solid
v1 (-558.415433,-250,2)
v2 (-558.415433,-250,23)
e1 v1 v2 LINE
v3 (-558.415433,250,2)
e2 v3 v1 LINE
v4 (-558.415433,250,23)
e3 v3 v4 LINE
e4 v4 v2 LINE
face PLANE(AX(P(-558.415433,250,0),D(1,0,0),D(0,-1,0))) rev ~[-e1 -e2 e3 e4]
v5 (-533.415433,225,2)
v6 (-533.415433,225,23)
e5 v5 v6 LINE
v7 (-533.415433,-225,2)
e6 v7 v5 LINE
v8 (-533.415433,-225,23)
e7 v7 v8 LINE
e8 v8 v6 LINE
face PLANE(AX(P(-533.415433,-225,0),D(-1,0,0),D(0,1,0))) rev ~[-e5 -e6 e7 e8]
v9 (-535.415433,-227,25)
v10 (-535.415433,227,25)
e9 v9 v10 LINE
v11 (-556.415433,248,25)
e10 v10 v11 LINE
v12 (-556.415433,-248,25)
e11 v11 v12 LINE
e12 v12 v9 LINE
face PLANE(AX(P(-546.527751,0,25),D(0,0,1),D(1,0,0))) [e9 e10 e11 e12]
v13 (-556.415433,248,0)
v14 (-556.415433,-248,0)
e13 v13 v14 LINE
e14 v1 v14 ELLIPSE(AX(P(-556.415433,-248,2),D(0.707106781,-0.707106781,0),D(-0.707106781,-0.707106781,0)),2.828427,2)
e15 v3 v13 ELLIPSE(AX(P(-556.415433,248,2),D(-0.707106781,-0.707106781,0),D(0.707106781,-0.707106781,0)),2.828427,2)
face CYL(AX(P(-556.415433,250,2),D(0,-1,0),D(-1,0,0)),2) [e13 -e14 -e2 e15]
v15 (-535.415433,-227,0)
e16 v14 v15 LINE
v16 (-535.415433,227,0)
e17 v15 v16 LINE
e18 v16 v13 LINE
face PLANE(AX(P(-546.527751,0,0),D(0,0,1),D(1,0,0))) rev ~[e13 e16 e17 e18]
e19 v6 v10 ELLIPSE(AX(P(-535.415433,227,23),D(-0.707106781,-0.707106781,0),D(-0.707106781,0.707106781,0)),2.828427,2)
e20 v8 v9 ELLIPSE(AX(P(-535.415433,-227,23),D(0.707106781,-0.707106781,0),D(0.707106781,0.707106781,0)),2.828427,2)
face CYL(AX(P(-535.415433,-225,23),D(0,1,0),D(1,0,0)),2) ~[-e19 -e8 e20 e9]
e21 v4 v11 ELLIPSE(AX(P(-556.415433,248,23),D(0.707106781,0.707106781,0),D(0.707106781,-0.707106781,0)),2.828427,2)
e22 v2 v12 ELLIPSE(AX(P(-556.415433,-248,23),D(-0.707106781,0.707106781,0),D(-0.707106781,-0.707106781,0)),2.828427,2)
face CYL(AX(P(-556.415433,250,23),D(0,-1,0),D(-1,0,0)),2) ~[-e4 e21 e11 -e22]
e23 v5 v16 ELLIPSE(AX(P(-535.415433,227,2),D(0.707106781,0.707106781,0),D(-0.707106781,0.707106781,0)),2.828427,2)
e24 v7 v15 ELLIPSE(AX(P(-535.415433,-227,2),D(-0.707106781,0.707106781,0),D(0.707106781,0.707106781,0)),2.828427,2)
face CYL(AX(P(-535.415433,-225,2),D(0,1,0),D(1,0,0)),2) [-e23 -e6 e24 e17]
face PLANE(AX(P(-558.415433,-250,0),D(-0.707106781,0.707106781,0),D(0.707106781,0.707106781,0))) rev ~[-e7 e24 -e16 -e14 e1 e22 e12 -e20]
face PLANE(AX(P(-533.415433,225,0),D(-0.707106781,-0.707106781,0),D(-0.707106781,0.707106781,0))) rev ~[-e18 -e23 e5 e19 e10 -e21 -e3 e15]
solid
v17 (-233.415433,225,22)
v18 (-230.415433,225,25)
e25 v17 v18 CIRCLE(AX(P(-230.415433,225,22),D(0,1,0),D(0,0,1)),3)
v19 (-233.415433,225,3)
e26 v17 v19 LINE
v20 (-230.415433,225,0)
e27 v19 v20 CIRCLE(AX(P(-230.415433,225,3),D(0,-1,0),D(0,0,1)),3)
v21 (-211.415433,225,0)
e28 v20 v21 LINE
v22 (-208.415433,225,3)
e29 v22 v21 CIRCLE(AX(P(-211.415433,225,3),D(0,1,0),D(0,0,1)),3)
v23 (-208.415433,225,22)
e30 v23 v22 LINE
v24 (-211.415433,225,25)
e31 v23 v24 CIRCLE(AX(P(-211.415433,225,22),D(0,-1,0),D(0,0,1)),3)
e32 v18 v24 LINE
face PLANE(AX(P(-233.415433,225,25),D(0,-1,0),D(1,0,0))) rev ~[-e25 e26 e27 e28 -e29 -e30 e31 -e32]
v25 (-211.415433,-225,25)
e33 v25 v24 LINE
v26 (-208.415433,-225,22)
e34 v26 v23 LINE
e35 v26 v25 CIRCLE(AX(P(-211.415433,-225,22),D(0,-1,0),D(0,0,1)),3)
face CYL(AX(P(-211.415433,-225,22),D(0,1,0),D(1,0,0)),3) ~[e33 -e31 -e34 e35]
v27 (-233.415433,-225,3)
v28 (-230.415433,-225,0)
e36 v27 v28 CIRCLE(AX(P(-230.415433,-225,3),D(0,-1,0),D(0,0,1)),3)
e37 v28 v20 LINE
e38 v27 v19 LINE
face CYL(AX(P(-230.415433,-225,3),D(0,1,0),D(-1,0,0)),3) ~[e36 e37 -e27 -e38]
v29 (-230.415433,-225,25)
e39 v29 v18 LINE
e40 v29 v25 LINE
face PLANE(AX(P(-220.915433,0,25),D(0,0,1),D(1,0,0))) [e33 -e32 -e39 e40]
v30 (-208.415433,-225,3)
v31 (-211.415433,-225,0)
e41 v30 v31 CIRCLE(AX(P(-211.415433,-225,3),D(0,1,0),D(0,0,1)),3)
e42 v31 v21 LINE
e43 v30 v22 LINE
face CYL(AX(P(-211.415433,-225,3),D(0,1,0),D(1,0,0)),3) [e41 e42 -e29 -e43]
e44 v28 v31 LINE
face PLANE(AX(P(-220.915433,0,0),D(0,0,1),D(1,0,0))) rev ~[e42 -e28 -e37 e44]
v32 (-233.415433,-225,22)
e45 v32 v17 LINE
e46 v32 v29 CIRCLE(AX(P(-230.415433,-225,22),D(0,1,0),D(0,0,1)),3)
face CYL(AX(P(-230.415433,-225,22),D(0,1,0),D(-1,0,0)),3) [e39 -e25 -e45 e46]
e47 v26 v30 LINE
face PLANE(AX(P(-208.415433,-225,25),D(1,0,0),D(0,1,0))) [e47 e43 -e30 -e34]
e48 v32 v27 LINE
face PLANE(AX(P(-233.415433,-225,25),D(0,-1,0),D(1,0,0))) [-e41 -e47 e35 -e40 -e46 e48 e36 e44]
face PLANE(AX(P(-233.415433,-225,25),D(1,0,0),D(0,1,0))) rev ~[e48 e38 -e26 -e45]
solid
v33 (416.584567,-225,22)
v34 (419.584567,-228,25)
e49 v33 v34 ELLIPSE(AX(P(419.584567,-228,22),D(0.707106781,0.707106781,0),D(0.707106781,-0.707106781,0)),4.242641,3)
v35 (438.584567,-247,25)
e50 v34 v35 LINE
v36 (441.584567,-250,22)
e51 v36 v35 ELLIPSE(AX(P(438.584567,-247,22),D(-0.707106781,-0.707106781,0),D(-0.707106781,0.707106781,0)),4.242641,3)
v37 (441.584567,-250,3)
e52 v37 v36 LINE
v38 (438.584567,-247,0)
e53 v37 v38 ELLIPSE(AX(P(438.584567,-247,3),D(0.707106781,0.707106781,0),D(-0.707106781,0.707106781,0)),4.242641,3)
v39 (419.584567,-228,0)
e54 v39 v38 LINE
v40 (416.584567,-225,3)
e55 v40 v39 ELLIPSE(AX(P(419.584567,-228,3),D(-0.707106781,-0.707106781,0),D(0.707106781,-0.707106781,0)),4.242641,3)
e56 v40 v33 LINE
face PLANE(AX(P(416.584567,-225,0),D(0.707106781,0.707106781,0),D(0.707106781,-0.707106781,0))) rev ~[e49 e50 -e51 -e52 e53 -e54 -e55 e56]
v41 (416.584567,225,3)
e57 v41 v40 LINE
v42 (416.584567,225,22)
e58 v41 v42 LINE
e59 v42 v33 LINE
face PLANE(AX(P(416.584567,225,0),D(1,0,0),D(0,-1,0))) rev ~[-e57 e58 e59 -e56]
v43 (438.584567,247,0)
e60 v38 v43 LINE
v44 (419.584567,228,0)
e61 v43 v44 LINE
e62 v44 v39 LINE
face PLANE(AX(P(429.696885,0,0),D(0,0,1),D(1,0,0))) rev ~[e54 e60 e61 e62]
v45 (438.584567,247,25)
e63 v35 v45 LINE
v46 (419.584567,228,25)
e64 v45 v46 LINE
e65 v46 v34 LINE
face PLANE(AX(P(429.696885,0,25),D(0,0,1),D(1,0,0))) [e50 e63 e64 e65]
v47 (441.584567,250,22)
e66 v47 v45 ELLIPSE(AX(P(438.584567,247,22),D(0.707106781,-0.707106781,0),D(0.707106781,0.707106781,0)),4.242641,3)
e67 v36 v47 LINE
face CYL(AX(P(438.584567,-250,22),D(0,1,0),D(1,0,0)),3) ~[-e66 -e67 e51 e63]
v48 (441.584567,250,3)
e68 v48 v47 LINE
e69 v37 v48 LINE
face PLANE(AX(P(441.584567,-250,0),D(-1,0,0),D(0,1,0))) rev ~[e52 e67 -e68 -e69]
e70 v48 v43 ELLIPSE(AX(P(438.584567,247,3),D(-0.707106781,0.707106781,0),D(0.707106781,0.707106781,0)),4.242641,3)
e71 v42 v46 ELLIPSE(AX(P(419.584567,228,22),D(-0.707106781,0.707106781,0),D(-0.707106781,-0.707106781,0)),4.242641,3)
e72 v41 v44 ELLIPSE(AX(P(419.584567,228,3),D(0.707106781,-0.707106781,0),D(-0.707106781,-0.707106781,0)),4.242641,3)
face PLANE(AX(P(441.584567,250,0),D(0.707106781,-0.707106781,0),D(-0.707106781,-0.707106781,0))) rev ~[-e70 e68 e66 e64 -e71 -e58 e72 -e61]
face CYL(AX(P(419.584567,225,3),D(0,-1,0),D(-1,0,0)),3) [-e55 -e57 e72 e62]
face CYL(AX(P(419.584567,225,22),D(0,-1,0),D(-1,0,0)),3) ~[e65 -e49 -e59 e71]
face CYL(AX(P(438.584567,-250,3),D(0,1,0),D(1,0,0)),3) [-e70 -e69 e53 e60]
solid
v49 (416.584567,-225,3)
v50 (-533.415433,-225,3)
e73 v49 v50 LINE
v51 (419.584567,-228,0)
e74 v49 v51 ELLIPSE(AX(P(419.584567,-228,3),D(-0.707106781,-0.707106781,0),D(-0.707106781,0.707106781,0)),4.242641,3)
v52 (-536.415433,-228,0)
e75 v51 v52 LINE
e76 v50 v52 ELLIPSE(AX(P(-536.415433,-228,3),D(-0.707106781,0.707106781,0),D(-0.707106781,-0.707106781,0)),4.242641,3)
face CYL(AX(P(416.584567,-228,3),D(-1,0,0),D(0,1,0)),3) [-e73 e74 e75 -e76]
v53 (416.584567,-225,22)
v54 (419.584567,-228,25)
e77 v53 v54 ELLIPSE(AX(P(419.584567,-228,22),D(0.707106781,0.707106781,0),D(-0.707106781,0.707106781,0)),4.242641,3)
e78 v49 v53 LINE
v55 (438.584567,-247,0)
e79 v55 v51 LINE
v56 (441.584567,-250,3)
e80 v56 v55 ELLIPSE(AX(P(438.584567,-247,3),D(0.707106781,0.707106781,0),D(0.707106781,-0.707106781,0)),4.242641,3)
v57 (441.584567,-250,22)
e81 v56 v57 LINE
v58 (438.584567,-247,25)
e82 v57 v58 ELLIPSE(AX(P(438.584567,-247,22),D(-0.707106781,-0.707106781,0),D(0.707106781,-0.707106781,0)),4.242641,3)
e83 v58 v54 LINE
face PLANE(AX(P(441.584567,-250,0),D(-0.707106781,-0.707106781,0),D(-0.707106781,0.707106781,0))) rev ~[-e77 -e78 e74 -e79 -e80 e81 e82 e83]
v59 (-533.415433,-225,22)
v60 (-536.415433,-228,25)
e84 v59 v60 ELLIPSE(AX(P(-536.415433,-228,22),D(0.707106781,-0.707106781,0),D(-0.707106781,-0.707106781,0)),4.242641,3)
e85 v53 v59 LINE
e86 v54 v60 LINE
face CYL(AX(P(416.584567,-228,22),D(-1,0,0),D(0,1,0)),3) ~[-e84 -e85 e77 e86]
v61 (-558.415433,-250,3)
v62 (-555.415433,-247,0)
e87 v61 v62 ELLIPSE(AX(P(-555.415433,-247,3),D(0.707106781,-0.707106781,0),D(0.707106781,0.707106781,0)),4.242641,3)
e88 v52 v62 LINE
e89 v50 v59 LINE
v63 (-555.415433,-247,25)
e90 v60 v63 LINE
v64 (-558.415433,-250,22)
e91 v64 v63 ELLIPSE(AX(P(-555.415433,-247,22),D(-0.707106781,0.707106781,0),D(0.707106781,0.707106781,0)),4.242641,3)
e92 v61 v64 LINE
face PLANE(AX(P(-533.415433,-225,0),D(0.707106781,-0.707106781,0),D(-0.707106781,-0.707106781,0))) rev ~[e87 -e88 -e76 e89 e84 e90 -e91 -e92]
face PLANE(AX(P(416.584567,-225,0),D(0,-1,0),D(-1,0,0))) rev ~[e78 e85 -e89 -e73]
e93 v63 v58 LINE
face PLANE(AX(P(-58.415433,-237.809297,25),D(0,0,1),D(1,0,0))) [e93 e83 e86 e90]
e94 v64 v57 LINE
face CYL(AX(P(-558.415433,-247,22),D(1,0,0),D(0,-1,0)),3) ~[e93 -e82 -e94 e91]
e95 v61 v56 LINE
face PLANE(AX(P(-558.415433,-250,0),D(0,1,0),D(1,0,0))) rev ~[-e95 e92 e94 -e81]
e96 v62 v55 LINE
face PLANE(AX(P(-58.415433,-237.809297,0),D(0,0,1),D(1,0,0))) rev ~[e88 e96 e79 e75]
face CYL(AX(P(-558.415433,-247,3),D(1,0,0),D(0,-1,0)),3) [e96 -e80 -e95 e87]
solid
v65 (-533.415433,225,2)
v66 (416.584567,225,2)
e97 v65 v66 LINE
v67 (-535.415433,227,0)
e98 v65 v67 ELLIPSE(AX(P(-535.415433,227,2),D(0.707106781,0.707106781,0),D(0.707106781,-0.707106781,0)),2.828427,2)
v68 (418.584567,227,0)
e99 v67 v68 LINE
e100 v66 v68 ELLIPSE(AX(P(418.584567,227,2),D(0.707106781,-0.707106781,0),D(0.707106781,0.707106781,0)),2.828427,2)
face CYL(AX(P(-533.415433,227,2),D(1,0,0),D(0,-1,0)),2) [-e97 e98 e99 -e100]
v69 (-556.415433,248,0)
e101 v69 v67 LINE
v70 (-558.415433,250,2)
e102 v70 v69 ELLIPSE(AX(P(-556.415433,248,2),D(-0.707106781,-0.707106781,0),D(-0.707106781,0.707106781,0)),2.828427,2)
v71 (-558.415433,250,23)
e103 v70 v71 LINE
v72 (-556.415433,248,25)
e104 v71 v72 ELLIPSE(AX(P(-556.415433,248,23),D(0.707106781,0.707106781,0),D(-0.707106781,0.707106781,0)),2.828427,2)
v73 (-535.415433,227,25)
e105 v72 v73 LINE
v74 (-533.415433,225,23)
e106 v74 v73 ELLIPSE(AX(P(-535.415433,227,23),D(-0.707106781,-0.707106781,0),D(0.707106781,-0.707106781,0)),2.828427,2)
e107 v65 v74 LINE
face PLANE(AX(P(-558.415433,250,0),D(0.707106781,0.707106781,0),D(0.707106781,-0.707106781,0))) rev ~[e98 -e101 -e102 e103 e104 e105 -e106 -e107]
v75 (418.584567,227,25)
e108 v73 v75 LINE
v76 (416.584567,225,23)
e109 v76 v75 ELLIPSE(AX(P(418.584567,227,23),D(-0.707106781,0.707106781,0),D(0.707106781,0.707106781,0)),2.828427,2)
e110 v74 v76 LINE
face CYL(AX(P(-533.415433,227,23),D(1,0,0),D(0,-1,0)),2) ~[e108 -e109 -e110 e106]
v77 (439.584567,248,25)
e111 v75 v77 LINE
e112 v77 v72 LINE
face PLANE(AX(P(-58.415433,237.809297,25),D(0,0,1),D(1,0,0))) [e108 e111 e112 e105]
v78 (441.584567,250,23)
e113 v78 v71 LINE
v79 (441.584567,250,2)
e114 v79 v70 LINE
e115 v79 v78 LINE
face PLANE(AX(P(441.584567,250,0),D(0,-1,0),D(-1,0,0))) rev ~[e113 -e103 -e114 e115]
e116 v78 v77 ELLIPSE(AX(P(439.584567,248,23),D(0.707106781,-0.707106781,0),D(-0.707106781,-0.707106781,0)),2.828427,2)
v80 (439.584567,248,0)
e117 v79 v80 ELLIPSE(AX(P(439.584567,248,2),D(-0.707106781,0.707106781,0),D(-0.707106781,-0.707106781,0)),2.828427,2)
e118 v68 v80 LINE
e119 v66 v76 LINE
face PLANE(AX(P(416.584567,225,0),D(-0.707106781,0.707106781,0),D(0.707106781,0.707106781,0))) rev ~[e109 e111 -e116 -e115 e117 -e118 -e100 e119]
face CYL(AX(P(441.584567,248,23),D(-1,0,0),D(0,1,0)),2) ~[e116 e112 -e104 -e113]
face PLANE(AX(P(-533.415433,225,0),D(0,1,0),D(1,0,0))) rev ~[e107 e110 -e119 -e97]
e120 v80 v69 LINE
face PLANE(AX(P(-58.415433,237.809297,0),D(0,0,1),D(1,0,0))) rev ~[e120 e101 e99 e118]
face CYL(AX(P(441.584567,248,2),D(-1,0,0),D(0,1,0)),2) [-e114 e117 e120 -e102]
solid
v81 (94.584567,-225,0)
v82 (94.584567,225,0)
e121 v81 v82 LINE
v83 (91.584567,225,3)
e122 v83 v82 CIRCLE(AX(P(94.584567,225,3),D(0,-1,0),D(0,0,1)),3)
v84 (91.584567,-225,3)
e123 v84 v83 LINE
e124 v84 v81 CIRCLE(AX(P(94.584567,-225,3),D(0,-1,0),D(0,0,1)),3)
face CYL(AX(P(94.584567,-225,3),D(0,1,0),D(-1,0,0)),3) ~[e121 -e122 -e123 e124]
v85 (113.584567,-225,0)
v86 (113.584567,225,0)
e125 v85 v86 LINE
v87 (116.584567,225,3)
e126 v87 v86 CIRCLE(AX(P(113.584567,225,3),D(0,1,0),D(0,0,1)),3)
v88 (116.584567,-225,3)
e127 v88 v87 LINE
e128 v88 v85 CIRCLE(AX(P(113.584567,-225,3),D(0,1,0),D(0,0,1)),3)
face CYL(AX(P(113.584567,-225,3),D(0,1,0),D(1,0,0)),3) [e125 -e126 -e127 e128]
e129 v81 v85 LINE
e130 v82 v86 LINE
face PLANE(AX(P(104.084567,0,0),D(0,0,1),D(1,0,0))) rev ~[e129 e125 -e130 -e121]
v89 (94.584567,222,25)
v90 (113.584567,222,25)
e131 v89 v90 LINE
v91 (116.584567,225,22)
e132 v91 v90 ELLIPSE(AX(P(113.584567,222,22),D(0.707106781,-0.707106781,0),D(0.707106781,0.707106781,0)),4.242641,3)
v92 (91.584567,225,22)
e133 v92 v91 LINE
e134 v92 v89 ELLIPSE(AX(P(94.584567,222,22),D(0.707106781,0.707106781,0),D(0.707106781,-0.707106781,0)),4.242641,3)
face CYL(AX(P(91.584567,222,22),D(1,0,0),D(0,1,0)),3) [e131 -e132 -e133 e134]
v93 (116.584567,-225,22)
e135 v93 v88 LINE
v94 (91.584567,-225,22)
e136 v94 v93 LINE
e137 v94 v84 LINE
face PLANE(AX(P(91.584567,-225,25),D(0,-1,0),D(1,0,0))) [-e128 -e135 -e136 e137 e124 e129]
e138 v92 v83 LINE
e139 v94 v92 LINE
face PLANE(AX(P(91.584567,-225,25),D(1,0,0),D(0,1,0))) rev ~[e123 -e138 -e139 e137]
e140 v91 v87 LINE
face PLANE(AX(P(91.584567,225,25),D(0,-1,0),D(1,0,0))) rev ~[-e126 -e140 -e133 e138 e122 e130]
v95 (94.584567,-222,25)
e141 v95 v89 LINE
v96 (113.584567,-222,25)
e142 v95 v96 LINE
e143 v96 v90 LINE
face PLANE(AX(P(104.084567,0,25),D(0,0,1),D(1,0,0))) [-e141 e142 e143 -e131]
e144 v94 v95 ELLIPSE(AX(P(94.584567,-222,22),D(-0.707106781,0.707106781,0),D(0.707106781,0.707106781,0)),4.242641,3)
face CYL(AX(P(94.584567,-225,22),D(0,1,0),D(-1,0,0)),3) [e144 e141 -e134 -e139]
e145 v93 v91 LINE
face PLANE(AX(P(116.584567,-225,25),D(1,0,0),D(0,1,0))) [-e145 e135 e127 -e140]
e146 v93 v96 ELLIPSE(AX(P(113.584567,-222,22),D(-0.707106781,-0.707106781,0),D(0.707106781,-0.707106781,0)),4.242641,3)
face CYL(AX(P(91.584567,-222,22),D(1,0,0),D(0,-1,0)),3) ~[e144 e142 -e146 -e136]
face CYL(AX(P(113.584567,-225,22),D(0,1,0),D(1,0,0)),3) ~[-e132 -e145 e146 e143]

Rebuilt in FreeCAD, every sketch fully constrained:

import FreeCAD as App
import Part
import Sketcher


def edges_at(feature, points):
    """Names of the edges that pass closest to the given points."""
    edges = feature.Shape.Edges
    near = lambda p: min(range(len(edges)), key=lambda i: edges[i].distToShape(Part.Vertex(*p))[0])
    return sorted({f"Edge{near(p) + 1}" for p in points})

doc = App.newDocument("Part")
body = doc.addObject("PartDesign::Body", "Body")

# Sketch on XY plane
sketch1 = body.newObject("Sketcher::SketchObject", "Sketch")
sketch1.AttachmentSupport = (doc.getObject("XY_Plane"), [""])
sketch1.MapMode = "FlatFace"
sketch1.addGeometry([
    Part.LineSegment(App.Vector(-533, 225, 0), App.Vector(-558, 250, 0)),
    Part.LineSegment(App.Vector(-558, 250, 0), App.Vector(-558, -250, 0)),
    Part.LineSegment(App.Vector(-558, -250, 0), App.Vector(-533, -225, 0)),
    Part.LineSegment(App.Vector(-533, -225, 0), App.Vector(-533, 225, 0)),
], False)
sketch1.addConstraint([
    Sketcher.Constraint("Coincident", 0, 2, 1, 1),
    Sketcher.Constraint("Coincident", 1, 2, 2, 1),
    Sketcher.Constraint("Coincident", 2, 2, 3, 1),
    Sketcher.Constraint("Coincident", 3, 2, 0, 1),
    Sketcher.Constraint("Vertical", 1),
    Sketcher.Constraint("Vertical", 3),
    Sketcher.Constraint("Perpendicular", 0, 2),
    Sketcher.Constraint("Equal", 0, 2),
    Sketcher.Constraint("DistanceY", 1, 2, 1, 1, 500.0),
    Sketcher.Constraint("DistanceY", 3, 1, 3, 2, 450.0),
    Sketcher.Constraint("DistanceY", -1, 1, 0, 2, 250.0),
    Sketcher.Constraint("DistanceX", 0, 2, -1, 1, 558.415433),
])
pad1 = body.newObject("PartDesign::Pad", "Pad")
pad1.Profile = sketch1
pad1.Length = 25
doc.recompute()

fillet = body.newObject("PartDesign::Fillet", "Fillet")
fillet.Base = (pad1, edges_at(pad1, [
    (-533.415, 0, 25),
    (-533.415, 0, 0),
    (-558.415, 0, 0),
    (-558.415, 0, 25),
]))
fillet.Radius = 2
body2 = doc.addObject("PartDesign::Body", "Body001")

# Sketch on XY plane
sketch2 = body2.newObject("Sketcher::SketchObject", "Sketch001")
sketch2.AttachmentSupport = (doc.getObject("XY_Plane001"), [""])
sketch2.MapMode = "FlatFace"
sketch2.addGeometry([
    Part.LineSegment(App.Vector(442, 250, 0), App.Vector(-558, 250, 0)),
    Part.LineSegment(App.Vector(-558, 250, 0), App.Vector(-533, 225, 0)),
    Part.LineSegment(App.Vector(-533, 225, 0), App.Vector(417, 225, 0)),
    Part.LineSegment(App.Vector(417, 225, 0), App.Vector(442, 250, 0)),
], False)
sketch2.addConstraint([
    Sketcher.Constraint("Coincident", 0, 2, 1, 1),
    Sketcher.Constraint("Coincident", 1, 2, 2, 1),
    Sketcher.Constraint("Coincident", 2, 2, 3, 1),
    Sketcher.Constraint("Coincident", 3, 2, 0, 1),
    Sketcher.Constraint("Horizontal", 0),
    Sketcher.Constraint("Horizontal", 2),
    Sketcher.Constraint("Perpendicular", 1, 3),
    Sketcher.Constraint("Equal", 1, 3),
    Sketcher.Constraint("DistanceX", 0, 2, 0, 1, 1000.0),
    Sketcher.Constraint("DistanceX", 2, 1, 2, 2, 950.0),
    Sketcher.Constraint("DistanceY", -1, 1, 0, 2, 250.0),
    Sketcher.Constraint("DistanceX", 0, 2, -1, 1, 558.415433),
])
pad2 = body2.newObject("PartDesign::Pad", "Pad001")
pad2.Profile = sketch2
pad2.Length = 25
doc.recompute()

fillet2 = body2.newObject("PartDesign::Fillet", "Fillet001")
fillet2.Base = (pad2, edges_at(pad2, [
    (-58.415, 225, 25),
    (-58.415, 250, 25),
    (-58.415, 250, 0),
    (-58.415, 225, 0),
]))
fillet2.Radius = 2
body3 = doc.addObject("PartDesign::Body", "Body002")

# Sketch on XY plane
sketch3 = body3.newObject("Sketcher::SketchObject", "Sketch002")
sketch3.AttachmentSupport = (doc.getObject("XY_Plane002"), [""])
sketch3.MapMode = "FlatFace"
sketch3.addGeometry([
    Part.LineSegment(App.Vector(-533, -225, 0), App.Vector(-558, -250, 0)),
    Part.LineSegment(App.Vector(-558, -250, 0), App.Vector(442, -250, 0)),
    Part.LineSegment(App.Vector(442, -250, 0), App.Vector(417, -225, 0)),
    Part.LineSegment(App.Vector(417, -225, 0), App.Vector(-533, -225, 0)),
], False)
sketch3.addConstraint([
    Sketcher.Constraint("Coincident", 0, 2, 1, 1),
    Sketcher.Constraint("Coincident", 1, 2, 2, 1),
    Sketcher.Constraint("Coincident", 2, 2, 3, 1),
    Sketcher.Constraint("Coincident", 3, 2, 0, 1),
    Sketcher.Constraint("Horizontal", 1),
    Sketcher.Constraint("Horizontal", 3),
    Sketcher.Constraint("Perpendicular", 0, 2),
    Sketcher.Constraint("Equal", 0, 2),
    Sketcher.Constraint("DistanceX", 1, 1, 1, 2, 1000.0),
    Sketcher.Constraint("DistanceX", 3, 2, 3, 1, 950.0),
    Sketcher.Constraint("DistanceY", 0, 2, -1, 1, 250.0),
    Sketcher.Constraint("DistanceX", 0, 2, -1, 1, 558.415433),
])
pad3 = body3.newObject("PartDesign::Pad", "Pad002")
pad3.Profile = sketch3
pad3.Length = 25
doc.recompute()

fillet3 = body3.newObject("PartDesign::Fillet", "Fillet002")
fillet3.Base = (pad3, edges_at(pad3, [
    (-58.415, -250, 25),
    (-58.415, -225, 25),
    (-58.415, -250, 0),
    (-58.415, -225, 0),
]))
fillet3.Radius = 3
body4 = doc.addObject("PartDesign::Body", "Body003")

# Sketch on XY plane
sketch4 = body4.newObject("Sketcher::SketchObject", "Sketch003")
sketch4.AttachmentSupport = (doc.getObject("XY_Plane003"), [""])
sketch4.MapMode = "FlatFace"
sketch4.addGeometry([
    Part.LineSegment(App.Vector(417, -225, 0), App.Vector(442, -250, 0)),
    Part.LineSegment(App.Vector(442, -250, 0), App.Vector(442, 250, 0)),
    Part.LineSegment(App.Vector(442, 250, 0), App.Vector(417, 225, 0)),
    Part.LineSegment(App.Vector(417, 225, 0), App.Vector(417, -225, 0)),
], False)
sketch4.addConstraint([
    Sketcher.Constraint("Coincident", 0, 2, 1, 1),
    Sketcher.Constraint("Coincident", 1, 2, 2, 1),
    Sketcher.Constraint("Coincident", 2, 2, 3, 1),
    Sketcher.Constraint("Coincident", 3, 2, 0, 1),
    Sketcher.Constraint("Vertical", 1),
    Sketcher.Constraint("Vertical", 3),
    Sketcher.Constraint("Perpendicular", 0, 2),
    Sketcher.Constraint("Equal", 0, 2),
    Sketcher.Constraint("DistanceY", 1, 1, 1, 2, 500.0),
    Sketcher.Constraint("DistanceY", 3, 2, 3, 1, 450.0),
    Sketcher.Constraint("DistanceY", 0, 2, -1, 1, 250.0),
    Sketcher.Constraint("DistanceX", -1, 1, 0, 2, 441.584567),
])
pad4 = body4.newObject("PartDesign::Pad", "Pad003")
pad4.Profile = sketch4
pad4.Length = 25
doc.recompute()

fillet4 = body4.newObject("PartDesign::Fillet", "Fillet003")
fillet4.Base = (pad4, edges_at(pad4, [
    (441.585, 0, 25),
    (416.585, 0, 25),
    (441.585, 0, 0),
    (416.585, 0, 0),
]))
fillet4.Radius = 3
body5 = doc.addObject("PartDesign::Body", "Body004")
body5.AllowCompound = True

# Sketch on XY plane
sketch5 = body5.newObject("Sketcher::SketchObject", "Sketch004")
sketch5.AttachmentSupport = (doc.getObject("XY_Plane004"), [""])
sketch5.MapMode = "FlatFace"
sketch5.AttachmentOffset = App.Placement(App.Vector(0, 0, 25), App.Rotation())
sketch5.addGeometry([
    Part.LineSegment(App.Vector(-233, 225, 0), App.Vector(-233, -225, 0)),  # 0
    Part.LineSegment(App.Vector(-233, -225, 0), App.Vector(-208, -225, 0)),  # 1
    Part.LineSegment(App.Vector(-208, -225, 0), App.Vector(-208, 225, 0)),  # 2
    Part.LineSegment(App.Vector(-208, 225, 0), App.Vector(-233, 225, 0)),  # 3
    Part.LineSegment(App.Vector(92, 225, 0), App.Vector(92, -225, 0)),  # 4
    Part.LineSegment(App.Vector(92, -225, 0), App.Vector(117, -225, 0)),  # 5
    Part.LineSegment(App.Vector(117, -225, 0), App.Vector(117, 225, 0)),  # 6
    Part.LineSegment(App.Vector(117, 225, 0), App.Vector(92, 225, 0)),  # 7
], False)
sketch5.addConstraint([
    Sketcher.Constraint("Coincident", 0, 2, 1, 1),
    Sketcher.Constraint("Coincident", 1, 2, 2, 1),
    Sketcher.Constraint("Coincident", 2, 2, 3, 1),
    Sketcher.Constraint("Coincident", 3, 2, 0, 1),
    Sketcher.Constraint("Coincident", 4, 2, 5, 1),
    Sketcher.Constraint("Coincident", 5, 2, 6, 1),
    Sketcher.Constraint("Coincident", 6, 2, 7, 1),
    Sketcher.Constraint("Coincident", 7, 2, 4, 1),
    Sketcher.Constraint("Vertical", 0),
    Sketcher.Constraint("Horizontal", 1),
    Sketcher.Constraint("Vertical", 2),
    Sketcher.Constraint("Horizontal", 3),
    Sketcher.Constraint("Vertical", 4),
    Sketcher.Constraint("Horizontal", 5),
    Sketcher.Constraint("Vertical", 6),
    Sketcher.Constraint("Horizontal", 7),
    Sketcher.Constraint("Horizontal", 1, 2, 4, 2),
    Sketcher.Constraint("Horizontal", 3, 2, 6, 2),
    Sketcher.Constraint("Equal", 3, 5),
    Sketcher.Constraint("DistanceX", 1, 1, 1, 2, 25.0),
    Sketcher.Constraint("DistanceY", 0, 2, 0, 1, 450.0),
    Sketcher.Constraint("DistanceY", 0, 2, -1, 1, 225.0),
    Sketcher.Constraint("DistanceX", 1, 2, 4, 2, 300.0),
    Sketcher.Constraint("DistanceX", 0, 2, -1, 1, 233.415433),
])
pad5 = body5.newObject("PartDesign::Pad", "Pad004")
pad5.Profile = sketch5
pad5.Length = 25
pad5.Reversed = True
doc.recompute()

fillet5 = body5.newObject("PartDesign::Fillet", "Fillet004")
fillet5.Base = (pad5, edges_at(pad5, [
    (-208.415, 0, 25),
    (-233.415, 0, 25),
    (-208.415, 0, 0),
    (104.085, 225, 25),
    (91.585, 0, 25),
    (104.085, -225, 25),
    (116.585, 0, 25),
    (116.585, 0, 0),
    (91.585, 0, 0),
    (-233.415, 0, 0),
]))
fillet5.Radius = 3

doc.recompute()
